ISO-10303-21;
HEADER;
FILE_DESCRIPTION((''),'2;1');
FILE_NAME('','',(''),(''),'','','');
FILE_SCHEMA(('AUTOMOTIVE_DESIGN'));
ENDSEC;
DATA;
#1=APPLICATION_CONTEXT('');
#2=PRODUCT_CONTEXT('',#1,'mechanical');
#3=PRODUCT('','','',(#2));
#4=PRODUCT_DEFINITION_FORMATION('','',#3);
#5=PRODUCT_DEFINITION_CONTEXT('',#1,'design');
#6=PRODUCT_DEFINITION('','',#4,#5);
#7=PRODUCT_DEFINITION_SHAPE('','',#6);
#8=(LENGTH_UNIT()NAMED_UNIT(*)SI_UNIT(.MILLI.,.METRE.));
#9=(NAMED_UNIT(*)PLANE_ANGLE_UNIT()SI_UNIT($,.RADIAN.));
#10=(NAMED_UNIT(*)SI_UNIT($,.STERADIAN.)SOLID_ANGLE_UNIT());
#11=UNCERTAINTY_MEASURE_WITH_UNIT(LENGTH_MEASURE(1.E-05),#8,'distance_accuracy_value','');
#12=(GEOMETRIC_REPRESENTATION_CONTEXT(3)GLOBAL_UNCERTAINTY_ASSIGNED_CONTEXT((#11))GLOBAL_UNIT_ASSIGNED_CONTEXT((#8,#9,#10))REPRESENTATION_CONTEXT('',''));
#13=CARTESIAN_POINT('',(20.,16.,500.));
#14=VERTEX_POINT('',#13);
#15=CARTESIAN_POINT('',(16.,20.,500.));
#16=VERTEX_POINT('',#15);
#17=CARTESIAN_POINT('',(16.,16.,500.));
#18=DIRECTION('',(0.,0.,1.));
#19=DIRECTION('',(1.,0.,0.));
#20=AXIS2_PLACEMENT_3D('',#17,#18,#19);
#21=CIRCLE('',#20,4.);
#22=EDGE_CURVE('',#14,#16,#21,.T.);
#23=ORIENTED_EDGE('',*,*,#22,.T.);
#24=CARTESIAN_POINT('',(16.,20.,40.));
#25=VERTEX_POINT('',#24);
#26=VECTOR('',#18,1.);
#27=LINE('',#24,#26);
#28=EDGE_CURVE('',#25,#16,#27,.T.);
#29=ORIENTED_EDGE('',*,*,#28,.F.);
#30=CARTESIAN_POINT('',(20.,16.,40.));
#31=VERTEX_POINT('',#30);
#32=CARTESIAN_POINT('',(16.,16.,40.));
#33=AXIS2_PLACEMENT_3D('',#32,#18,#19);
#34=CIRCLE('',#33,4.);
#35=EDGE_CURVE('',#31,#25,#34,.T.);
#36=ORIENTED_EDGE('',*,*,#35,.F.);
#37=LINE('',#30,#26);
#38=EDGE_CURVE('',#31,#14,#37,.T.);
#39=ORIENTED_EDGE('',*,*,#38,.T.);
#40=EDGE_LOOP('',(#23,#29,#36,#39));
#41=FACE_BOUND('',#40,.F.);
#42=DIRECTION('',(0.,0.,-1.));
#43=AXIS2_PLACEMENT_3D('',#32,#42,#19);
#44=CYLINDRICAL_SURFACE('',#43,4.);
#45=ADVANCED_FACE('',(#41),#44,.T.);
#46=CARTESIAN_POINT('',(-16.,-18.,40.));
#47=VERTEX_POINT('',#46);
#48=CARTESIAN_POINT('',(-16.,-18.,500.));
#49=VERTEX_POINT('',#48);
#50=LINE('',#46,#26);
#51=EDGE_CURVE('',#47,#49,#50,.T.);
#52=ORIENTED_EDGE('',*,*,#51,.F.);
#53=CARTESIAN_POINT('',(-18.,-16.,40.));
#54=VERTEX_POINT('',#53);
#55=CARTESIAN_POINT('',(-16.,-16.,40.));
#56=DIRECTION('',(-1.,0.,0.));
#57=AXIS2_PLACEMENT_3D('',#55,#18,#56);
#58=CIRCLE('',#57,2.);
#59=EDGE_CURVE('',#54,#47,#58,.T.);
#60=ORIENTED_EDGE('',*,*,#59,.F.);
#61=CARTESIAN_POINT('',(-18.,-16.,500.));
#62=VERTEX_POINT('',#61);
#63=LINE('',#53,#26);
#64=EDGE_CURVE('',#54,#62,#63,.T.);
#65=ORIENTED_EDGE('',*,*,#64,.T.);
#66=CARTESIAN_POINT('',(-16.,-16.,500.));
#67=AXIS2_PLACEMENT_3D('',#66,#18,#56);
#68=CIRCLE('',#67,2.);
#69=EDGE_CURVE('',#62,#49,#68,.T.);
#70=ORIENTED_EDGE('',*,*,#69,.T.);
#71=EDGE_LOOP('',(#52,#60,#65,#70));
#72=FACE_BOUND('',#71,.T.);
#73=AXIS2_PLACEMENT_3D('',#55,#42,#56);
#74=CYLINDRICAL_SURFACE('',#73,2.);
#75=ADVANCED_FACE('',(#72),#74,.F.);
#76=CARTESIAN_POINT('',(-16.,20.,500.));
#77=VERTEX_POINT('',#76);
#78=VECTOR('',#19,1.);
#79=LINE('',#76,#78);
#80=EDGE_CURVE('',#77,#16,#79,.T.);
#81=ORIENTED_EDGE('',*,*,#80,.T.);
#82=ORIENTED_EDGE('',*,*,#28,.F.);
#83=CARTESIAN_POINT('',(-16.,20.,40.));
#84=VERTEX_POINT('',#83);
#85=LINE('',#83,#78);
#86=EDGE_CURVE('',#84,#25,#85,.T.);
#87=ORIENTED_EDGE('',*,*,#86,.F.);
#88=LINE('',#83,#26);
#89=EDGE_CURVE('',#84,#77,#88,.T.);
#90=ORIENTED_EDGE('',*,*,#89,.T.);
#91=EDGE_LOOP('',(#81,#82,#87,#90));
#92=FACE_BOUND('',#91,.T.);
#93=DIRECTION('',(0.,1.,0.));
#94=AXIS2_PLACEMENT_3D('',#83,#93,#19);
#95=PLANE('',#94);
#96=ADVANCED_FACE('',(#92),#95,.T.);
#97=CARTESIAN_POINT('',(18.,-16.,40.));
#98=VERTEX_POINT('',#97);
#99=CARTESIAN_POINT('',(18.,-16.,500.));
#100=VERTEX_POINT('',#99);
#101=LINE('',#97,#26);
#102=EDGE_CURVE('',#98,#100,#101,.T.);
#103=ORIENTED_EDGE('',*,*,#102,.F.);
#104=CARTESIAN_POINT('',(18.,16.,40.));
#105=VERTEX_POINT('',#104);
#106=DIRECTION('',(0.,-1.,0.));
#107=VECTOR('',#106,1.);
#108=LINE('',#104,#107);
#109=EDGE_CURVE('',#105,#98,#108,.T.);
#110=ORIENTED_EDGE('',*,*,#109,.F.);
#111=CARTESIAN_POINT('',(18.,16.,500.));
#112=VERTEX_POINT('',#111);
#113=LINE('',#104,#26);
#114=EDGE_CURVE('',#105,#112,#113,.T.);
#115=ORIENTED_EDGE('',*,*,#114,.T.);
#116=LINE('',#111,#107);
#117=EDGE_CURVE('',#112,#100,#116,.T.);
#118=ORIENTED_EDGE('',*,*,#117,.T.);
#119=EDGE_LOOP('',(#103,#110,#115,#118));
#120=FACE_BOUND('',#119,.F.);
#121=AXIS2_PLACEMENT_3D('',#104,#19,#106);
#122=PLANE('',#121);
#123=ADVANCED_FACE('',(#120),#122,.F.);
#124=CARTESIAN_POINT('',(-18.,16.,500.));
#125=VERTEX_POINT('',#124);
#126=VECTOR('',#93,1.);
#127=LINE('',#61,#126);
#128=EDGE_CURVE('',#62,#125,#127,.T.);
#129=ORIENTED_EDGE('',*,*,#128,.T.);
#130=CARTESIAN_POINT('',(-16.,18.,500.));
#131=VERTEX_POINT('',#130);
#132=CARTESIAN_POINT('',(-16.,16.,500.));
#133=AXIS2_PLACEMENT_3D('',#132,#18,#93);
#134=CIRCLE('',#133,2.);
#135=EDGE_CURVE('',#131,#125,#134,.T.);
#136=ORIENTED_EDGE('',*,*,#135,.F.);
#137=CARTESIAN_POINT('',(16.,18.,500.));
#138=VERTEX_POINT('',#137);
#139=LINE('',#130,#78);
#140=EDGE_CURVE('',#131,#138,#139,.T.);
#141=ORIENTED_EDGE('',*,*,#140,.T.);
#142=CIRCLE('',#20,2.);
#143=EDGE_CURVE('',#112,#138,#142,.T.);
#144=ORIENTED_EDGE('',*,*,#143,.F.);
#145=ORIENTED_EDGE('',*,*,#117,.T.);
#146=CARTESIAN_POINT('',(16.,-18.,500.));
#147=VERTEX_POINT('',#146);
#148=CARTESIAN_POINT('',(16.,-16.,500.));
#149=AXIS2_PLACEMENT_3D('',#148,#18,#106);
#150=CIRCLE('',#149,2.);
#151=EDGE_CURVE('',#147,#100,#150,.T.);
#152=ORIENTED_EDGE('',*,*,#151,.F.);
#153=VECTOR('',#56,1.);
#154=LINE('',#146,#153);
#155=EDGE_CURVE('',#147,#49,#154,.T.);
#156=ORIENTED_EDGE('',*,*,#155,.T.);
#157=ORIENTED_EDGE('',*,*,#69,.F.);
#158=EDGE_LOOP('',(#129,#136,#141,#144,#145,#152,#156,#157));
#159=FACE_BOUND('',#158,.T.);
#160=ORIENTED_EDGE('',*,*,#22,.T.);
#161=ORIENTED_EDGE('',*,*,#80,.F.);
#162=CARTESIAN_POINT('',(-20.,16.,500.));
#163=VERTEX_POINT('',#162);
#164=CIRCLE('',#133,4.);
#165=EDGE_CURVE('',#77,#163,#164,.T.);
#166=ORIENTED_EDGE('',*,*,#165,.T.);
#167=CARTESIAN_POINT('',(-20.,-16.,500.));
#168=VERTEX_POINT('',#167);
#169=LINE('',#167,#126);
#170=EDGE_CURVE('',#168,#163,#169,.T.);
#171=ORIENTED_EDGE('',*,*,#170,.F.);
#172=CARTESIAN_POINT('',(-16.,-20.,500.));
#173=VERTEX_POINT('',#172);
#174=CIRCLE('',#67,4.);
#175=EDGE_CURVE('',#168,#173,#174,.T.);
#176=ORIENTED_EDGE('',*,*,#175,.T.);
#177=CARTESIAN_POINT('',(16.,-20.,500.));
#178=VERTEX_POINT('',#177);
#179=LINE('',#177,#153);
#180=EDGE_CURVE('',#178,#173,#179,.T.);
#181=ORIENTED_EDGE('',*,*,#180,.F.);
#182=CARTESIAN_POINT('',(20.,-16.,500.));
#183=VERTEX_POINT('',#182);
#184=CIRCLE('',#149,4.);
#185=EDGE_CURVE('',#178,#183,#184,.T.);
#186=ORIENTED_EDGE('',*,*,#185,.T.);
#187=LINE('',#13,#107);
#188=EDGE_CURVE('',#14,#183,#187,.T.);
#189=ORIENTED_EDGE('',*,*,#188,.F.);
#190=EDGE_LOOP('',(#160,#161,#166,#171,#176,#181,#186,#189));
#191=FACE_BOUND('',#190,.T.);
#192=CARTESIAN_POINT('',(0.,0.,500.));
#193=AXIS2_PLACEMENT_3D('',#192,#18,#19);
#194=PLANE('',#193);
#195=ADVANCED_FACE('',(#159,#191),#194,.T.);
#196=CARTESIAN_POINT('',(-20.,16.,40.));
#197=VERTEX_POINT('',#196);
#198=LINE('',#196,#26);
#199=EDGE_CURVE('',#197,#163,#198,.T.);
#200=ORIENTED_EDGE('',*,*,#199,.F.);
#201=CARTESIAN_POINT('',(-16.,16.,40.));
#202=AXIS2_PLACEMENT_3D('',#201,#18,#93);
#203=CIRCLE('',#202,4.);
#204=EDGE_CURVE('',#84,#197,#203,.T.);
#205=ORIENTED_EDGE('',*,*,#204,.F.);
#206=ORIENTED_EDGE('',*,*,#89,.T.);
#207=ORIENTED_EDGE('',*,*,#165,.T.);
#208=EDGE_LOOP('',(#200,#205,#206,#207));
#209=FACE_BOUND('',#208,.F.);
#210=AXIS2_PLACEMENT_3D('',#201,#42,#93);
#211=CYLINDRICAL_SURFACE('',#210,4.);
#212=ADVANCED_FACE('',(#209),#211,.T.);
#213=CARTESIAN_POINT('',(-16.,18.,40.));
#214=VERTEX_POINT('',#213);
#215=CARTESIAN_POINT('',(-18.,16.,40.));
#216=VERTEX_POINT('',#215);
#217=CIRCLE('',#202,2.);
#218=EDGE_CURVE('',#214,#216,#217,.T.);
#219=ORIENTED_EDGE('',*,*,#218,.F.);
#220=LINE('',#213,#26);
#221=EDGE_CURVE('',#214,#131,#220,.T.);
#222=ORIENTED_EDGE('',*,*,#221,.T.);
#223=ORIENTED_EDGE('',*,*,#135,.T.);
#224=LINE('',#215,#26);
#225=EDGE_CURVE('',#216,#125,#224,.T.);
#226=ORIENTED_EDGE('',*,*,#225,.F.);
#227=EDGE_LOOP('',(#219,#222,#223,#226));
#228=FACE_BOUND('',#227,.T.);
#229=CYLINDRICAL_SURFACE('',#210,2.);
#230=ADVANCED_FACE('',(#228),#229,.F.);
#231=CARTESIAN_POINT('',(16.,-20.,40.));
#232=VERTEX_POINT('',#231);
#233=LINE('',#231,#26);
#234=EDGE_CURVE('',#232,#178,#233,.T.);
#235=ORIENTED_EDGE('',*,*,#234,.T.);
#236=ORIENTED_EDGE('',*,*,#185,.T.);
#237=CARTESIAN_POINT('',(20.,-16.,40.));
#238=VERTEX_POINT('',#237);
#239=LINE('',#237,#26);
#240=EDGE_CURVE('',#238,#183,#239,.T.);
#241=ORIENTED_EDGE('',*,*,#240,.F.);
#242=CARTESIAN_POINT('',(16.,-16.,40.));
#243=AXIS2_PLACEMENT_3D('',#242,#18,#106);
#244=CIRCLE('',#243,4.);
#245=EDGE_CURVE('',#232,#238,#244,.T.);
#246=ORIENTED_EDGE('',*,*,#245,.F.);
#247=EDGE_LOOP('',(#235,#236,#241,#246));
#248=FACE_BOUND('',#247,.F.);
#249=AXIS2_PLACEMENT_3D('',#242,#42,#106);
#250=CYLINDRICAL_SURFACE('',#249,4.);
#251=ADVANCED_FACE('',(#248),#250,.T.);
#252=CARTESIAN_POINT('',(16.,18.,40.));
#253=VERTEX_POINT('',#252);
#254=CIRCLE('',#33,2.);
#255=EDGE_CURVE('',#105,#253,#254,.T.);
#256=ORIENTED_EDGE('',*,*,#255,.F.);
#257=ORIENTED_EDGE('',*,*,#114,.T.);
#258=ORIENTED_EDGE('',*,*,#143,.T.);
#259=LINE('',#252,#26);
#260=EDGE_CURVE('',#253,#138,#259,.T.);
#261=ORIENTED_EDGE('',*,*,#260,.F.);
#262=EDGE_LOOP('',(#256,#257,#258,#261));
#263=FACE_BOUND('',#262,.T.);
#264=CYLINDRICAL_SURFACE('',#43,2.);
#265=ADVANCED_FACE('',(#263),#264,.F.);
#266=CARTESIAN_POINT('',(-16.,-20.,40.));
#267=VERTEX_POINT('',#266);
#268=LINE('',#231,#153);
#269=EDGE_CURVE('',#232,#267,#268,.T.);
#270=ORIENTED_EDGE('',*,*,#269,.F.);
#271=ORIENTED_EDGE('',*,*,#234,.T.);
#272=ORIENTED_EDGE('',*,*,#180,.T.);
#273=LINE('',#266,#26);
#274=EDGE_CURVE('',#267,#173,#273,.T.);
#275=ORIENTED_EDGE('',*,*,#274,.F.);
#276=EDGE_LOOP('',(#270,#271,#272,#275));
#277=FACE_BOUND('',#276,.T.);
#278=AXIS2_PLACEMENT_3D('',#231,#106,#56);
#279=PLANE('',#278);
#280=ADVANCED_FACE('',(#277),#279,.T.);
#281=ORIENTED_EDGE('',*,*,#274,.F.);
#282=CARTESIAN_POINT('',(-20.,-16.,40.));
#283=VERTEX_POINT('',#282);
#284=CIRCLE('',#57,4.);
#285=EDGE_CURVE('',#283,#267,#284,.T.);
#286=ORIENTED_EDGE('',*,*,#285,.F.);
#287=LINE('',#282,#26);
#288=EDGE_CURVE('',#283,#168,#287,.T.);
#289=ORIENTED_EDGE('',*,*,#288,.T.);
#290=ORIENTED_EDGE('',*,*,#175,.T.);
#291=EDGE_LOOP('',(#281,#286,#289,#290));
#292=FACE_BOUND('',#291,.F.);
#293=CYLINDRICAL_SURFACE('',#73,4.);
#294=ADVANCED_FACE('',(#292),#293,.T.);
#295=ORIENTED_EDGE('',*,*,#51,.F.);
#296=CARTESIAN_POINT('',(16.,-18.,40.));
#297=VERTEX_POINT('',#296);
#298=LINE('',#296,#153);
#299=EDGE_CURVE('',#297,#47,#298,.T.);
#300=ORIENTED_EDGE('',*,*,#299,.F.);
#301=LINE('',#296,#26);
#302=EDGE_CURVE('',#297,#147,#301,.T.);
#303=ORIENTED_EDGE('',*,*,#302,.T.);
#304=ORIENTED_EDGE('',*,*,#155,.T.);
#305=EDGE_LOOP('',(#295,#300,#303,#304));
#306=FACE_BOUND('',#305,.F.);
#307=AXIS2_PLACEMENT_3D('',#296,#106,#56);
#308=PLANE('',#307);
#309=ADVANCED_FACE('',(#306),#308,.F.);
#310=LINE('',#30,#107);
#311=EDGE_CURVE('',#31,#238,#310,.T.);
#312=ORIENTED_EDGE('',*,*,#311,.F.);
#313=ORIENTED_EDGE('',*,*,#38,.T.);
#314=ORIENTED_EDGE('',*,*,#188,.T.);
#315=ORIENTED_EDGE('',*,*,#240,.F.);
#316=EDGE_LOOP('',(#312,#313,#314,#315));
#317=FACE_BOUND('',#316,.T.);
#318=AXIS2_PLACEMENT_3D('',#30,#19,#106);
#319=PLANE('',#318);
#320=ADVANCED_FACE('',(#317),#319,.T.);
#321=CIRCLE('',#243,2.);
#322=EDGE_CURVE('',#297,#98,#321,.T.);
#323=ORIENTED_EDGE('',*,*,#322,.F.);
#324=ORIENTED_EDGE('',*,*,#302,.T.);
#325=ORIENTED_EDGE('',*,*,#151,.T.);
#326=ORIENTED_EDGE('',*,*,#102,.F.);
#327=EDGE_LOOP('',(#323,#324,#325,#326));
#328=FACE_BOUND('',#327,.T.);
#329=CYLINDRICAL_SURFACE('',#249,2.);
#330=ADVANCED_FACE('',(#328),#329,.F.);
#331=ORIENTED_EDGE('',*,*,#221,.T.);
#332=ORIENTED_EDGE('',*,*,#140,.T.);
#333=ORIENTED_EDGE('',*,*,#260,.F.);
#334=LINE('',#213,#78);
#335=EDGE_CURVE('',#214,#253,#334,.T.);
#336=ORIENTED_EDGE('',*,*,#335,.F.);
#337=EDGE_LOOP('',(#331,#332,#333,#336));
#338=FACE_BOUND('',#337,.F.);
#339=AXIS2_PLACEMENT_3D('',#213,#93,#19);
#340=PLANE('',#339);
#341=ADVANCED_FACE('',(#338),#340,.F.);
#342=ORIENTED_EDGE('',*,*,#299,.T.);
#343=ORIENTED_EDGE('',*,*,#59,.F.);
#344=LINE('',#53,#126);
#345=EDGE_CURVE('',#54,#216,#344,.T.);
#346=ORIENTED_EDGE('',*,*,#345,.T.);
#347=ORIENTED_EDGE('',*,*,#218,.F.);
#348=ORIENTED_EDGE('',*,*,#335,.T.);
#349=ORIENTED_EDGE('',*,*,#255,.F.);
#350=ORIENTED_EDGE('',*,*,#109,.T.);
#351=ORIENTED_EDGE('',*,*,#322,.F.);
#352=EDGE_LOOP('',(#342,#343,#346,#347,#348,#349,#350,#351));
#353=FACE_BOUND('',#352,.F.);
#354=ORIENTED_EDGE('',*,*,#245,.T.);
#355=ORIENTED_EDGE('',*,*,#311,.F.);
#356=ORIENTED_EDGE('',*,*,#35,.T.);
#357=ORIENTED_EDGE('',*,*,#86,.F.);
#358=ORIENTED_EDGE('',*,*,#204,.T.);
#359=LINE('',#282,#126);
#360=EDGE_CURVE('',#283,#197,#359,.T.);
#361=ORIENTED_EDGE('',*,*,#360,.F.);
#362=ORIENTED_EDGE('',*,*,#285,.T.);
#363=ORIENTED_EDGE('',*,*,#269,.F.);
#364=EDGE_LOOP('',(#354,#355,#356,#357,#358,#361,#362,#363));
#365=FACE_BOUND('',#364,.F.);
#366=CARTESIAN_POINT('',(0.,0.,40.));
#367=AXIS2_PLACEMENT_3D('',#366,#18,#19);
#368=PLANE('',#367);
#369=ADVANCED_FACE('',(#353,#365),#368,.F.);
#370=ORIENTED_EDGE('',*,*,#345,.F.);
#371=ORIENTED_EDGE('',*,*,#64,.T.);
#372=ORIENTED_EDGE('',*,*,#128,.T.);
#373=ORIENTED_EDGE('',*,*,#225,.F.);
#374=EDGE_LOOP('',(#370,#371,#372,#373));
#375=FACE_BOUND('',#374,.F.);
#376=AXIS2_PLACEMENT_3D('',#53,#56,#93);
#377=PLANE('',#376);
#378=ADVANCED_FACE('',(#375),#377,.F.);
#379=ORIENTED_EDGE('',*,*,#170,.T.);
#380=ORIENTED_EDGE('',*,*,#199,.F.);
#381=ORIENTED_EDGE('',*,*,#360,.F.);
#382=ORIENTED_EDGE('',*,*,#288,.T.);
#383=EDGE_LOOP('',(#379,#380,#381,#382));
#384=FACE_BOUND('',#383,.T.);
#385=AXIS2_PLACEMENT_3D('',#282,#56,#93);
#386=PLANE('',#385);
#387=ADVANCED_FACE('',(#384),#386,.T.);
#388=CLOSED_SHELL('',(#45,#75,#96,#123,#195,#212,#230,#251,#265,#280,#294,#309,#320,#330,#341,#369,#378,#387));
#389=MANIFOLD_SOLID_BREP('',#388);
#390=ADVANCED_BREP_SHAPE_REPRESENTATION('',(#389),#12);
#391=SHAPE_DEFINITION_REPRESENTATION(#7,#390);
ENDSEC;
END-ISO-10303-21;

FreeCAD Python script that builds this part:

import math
import FreeCAD as App
import Part
import Sketcher
from FreeCAD import Vector

doc = App.newDocument("Part")
body = doc.addObject("PartDesign::Body", "Body")

sketch1 = body.newObject("Sketcher::SketchObject", "Sketch")
sketch1.AttachmentSupport = (doc.getObject("XY_Plane"), [""])
sketch1.MapMode = "FlatFace"
sketch1.AttachmentOffset = App.Placement(Vector(0, 0, 40), App.Rotation())
sketch1.addGeometry(Part.LineSegment(Vector(-20, 16, 0), Vector(-20, -16, 0)), False)
sketch1.addGeometry(Part.ArcOfCircle(Part.Circle(Vector(-16, -16, 0), Vector(0, 0, 1), 4), math.radians(180), math.radians(270)), False)
sketch1.addGeometry(Part.LineSegment(Vector(-16, -20, 0), Vector(16, -20, 0)), False)
sketch1.addGeometry(Part.ArcOfCircle(Part.Circle(Vector(16, -16, 0), Vector(0, 0, 1), 4), math.radians(-90), math.radians(0)), False)
sketch1.addGeometry(Part.LineSegment(Vector(20, -16, 0), Vector(20, 16, 0)), False)
sketch1.addGeometry(Part.ArcOfCircle(Part.Circle(Vector(16, 16, 0), Vector(0, 0, 1), 4), math.radians(0), math.radians(90)), False)
sketch1.addGeometry(Part.LineSegment(Vector(16, 20, 0), Vector(-16, 20, 0)), False)
sketch1.addGeometry(Part.ArcOfCircle(Part.Circle(Vector(-16, 16, 0), Vector(0, 0, 1), 4), math.radians(90), math.radians(180)), False)
sketch1.addGeometry(Part.ArcOfCircle(Part.Circle(Vector(-16, 16, 0), Vector(0, 0, 1), 2), math.radians(90), math.radians(180)), False)
sketch1.addGeometry(Part.LineSegment(Vector(-16, 18, 0), Vector(16, 18, 0)), False)
sketch1.addGeometry(Part.ArcOfCircle(Part.Circle(Vector(16, 16, 0), Vector(0, 0, 1), 2), math.radians(0), math.radians(90)), False)
sketch1.addGeometry(Part.LineSegment(Vector(18, 16, 0), Vector(18, -16, 0)), False)
sketch1.addGeometry(Part.ArcOfCircle(Part.Circle(Vector(16, -16, 0), Vector(0, 0, 1), 2), math.radians(-90), math.radians(0)), False)
sketch1.addGeometry(Part.LineSegment(Vector(16, -18, 0), Vector(-16, -18, 0)), False)
sketch1.addGeometry(Part.ArcOfCircle(Part.Circle(Vector(-16, -16, 0), Vector(0, 0, 1), 2), math.radians(180), math.radians(270)), False)
sketch1.addGeometry(Part.LineSegment(Vector(-18, -16, 0), Vector(-18, 16, 0)), False)
sketch1.addConstraint(Sketcher.Constraint("Tangent", 0, 2, 1, 1))
sketch1.addConstraint(Sketcher.Constraint("Tangent", 1, 2, 2, 1))
sketch1.addConstraint(Sketcher.Constraint("Tangent", 2, 2, 3, 1))
sketch1.addConstraint(Sketcher.Constraint("Tangent", 3, 2, 4, 1))
sketch1.addConstraint(Sketcher.Constraint("Tangent", 4, 2, 5, 1))
sketch1.addConstraint(Sketcher.Constraint("Tangent", 5, 2, 6, 1))
sketch1.addConstraint(Sketcher.Constraint("Tangent", 6, 2, 7, 1))
sketch1.addConstraint(Sketcher.Constraint("Tangent", 7, 2, 0, 1))
sketch1.addConstraint(Sketcher.Constraint("Tangent", 8, 1, 9, 1))
sketch1.addConstraint(Sketcher.Constraint("Tangent", 9, 2, 10, 2))
sketch1.addConstraint(Sketcher.Constraint("Tangent", 10, 1, 11, 1))
sketch1.addConstraint(Sketcher.Constraint("Tangent", 11, 2, 12, 2))
sketch1.addConstraint(Sketcher.Constraint("Tangent", 12, 1, 13, 1))
sketch1.addConstraint(Sketcher.Constraint("Tangent", 13, 2, 14, 2))
sketch1.addConstraint(Sketcher.Constraint("Tangent", 14, 1, 15, 1))
sketch1.addConstraint(Sketcher.Constraint("Tangent", 15, 2, 8, 2))
sketch1.addConstraint(Sketcher.Constraint("Vertical", 0))
sketch1.addConstraint(Sketcher.Constraint("Horizontal", 2))
sketch1.addConstraint(Sketcher.Constraint("Vertical", 4))
sketch1.addConstraint(Sketcher.Constraint("Horizontal", 6))
sketch1.addConstraint(Sketcher.Constraint("Horizontal", 9))
sketch1.addConstraint(Sketcher.Constraint("Vertical", 11))
sketch1.addConstraint(Sketcher.Constraint("Horizontal", 13))
sketch1.addConstraint(Sketcher.Constraint("Vertical", 15))
sketch1.addConstraint(Sketcher.Constraint("Coincident", 8, 3, 7, 3))
sketch1.addConstraint(Sketcher.Constraint("Coincident", 10, 3, 5, 3))
sketch1.addConstraint(Sketcher.Constraint("Coincident", 12, 3, 3, 3))
sketch1.addConstraint(Sketcher.Constraint("Equal", 1, 3))
sketch1.addConstraint(Sketcher.Constraint("Equal", 3, 5))
sketch1.addConstraint(Sketcher.Constraint("Equal", 5, 7))
sketch1.addConstraint(Sketcher.Constraint("Equal", 12, 14))
sketch1.addConstraint(Sketcher.Constraint("Symmetric", 1, 3, 5, 3, -1, 1))
sketch1.addConstraint(Sketcher.Constraint("Equal", 13, 0))
sketch1.addConstraint(Sketcher.Constraint("Radius", 1, 4.0))
sketch1.addConstraint(Sketcher.Constraint("Radius", 8, 2.0))
sketch1.addConstraint(Sketcher.Constraint("DistanceX", 0, 2, -1, 1, 20.0))
pad1 = body.newObject("PartDesign::Pad", "Pad")
pad1.Profile = sketch1
pad1.Length = 460

doc.recompute()
